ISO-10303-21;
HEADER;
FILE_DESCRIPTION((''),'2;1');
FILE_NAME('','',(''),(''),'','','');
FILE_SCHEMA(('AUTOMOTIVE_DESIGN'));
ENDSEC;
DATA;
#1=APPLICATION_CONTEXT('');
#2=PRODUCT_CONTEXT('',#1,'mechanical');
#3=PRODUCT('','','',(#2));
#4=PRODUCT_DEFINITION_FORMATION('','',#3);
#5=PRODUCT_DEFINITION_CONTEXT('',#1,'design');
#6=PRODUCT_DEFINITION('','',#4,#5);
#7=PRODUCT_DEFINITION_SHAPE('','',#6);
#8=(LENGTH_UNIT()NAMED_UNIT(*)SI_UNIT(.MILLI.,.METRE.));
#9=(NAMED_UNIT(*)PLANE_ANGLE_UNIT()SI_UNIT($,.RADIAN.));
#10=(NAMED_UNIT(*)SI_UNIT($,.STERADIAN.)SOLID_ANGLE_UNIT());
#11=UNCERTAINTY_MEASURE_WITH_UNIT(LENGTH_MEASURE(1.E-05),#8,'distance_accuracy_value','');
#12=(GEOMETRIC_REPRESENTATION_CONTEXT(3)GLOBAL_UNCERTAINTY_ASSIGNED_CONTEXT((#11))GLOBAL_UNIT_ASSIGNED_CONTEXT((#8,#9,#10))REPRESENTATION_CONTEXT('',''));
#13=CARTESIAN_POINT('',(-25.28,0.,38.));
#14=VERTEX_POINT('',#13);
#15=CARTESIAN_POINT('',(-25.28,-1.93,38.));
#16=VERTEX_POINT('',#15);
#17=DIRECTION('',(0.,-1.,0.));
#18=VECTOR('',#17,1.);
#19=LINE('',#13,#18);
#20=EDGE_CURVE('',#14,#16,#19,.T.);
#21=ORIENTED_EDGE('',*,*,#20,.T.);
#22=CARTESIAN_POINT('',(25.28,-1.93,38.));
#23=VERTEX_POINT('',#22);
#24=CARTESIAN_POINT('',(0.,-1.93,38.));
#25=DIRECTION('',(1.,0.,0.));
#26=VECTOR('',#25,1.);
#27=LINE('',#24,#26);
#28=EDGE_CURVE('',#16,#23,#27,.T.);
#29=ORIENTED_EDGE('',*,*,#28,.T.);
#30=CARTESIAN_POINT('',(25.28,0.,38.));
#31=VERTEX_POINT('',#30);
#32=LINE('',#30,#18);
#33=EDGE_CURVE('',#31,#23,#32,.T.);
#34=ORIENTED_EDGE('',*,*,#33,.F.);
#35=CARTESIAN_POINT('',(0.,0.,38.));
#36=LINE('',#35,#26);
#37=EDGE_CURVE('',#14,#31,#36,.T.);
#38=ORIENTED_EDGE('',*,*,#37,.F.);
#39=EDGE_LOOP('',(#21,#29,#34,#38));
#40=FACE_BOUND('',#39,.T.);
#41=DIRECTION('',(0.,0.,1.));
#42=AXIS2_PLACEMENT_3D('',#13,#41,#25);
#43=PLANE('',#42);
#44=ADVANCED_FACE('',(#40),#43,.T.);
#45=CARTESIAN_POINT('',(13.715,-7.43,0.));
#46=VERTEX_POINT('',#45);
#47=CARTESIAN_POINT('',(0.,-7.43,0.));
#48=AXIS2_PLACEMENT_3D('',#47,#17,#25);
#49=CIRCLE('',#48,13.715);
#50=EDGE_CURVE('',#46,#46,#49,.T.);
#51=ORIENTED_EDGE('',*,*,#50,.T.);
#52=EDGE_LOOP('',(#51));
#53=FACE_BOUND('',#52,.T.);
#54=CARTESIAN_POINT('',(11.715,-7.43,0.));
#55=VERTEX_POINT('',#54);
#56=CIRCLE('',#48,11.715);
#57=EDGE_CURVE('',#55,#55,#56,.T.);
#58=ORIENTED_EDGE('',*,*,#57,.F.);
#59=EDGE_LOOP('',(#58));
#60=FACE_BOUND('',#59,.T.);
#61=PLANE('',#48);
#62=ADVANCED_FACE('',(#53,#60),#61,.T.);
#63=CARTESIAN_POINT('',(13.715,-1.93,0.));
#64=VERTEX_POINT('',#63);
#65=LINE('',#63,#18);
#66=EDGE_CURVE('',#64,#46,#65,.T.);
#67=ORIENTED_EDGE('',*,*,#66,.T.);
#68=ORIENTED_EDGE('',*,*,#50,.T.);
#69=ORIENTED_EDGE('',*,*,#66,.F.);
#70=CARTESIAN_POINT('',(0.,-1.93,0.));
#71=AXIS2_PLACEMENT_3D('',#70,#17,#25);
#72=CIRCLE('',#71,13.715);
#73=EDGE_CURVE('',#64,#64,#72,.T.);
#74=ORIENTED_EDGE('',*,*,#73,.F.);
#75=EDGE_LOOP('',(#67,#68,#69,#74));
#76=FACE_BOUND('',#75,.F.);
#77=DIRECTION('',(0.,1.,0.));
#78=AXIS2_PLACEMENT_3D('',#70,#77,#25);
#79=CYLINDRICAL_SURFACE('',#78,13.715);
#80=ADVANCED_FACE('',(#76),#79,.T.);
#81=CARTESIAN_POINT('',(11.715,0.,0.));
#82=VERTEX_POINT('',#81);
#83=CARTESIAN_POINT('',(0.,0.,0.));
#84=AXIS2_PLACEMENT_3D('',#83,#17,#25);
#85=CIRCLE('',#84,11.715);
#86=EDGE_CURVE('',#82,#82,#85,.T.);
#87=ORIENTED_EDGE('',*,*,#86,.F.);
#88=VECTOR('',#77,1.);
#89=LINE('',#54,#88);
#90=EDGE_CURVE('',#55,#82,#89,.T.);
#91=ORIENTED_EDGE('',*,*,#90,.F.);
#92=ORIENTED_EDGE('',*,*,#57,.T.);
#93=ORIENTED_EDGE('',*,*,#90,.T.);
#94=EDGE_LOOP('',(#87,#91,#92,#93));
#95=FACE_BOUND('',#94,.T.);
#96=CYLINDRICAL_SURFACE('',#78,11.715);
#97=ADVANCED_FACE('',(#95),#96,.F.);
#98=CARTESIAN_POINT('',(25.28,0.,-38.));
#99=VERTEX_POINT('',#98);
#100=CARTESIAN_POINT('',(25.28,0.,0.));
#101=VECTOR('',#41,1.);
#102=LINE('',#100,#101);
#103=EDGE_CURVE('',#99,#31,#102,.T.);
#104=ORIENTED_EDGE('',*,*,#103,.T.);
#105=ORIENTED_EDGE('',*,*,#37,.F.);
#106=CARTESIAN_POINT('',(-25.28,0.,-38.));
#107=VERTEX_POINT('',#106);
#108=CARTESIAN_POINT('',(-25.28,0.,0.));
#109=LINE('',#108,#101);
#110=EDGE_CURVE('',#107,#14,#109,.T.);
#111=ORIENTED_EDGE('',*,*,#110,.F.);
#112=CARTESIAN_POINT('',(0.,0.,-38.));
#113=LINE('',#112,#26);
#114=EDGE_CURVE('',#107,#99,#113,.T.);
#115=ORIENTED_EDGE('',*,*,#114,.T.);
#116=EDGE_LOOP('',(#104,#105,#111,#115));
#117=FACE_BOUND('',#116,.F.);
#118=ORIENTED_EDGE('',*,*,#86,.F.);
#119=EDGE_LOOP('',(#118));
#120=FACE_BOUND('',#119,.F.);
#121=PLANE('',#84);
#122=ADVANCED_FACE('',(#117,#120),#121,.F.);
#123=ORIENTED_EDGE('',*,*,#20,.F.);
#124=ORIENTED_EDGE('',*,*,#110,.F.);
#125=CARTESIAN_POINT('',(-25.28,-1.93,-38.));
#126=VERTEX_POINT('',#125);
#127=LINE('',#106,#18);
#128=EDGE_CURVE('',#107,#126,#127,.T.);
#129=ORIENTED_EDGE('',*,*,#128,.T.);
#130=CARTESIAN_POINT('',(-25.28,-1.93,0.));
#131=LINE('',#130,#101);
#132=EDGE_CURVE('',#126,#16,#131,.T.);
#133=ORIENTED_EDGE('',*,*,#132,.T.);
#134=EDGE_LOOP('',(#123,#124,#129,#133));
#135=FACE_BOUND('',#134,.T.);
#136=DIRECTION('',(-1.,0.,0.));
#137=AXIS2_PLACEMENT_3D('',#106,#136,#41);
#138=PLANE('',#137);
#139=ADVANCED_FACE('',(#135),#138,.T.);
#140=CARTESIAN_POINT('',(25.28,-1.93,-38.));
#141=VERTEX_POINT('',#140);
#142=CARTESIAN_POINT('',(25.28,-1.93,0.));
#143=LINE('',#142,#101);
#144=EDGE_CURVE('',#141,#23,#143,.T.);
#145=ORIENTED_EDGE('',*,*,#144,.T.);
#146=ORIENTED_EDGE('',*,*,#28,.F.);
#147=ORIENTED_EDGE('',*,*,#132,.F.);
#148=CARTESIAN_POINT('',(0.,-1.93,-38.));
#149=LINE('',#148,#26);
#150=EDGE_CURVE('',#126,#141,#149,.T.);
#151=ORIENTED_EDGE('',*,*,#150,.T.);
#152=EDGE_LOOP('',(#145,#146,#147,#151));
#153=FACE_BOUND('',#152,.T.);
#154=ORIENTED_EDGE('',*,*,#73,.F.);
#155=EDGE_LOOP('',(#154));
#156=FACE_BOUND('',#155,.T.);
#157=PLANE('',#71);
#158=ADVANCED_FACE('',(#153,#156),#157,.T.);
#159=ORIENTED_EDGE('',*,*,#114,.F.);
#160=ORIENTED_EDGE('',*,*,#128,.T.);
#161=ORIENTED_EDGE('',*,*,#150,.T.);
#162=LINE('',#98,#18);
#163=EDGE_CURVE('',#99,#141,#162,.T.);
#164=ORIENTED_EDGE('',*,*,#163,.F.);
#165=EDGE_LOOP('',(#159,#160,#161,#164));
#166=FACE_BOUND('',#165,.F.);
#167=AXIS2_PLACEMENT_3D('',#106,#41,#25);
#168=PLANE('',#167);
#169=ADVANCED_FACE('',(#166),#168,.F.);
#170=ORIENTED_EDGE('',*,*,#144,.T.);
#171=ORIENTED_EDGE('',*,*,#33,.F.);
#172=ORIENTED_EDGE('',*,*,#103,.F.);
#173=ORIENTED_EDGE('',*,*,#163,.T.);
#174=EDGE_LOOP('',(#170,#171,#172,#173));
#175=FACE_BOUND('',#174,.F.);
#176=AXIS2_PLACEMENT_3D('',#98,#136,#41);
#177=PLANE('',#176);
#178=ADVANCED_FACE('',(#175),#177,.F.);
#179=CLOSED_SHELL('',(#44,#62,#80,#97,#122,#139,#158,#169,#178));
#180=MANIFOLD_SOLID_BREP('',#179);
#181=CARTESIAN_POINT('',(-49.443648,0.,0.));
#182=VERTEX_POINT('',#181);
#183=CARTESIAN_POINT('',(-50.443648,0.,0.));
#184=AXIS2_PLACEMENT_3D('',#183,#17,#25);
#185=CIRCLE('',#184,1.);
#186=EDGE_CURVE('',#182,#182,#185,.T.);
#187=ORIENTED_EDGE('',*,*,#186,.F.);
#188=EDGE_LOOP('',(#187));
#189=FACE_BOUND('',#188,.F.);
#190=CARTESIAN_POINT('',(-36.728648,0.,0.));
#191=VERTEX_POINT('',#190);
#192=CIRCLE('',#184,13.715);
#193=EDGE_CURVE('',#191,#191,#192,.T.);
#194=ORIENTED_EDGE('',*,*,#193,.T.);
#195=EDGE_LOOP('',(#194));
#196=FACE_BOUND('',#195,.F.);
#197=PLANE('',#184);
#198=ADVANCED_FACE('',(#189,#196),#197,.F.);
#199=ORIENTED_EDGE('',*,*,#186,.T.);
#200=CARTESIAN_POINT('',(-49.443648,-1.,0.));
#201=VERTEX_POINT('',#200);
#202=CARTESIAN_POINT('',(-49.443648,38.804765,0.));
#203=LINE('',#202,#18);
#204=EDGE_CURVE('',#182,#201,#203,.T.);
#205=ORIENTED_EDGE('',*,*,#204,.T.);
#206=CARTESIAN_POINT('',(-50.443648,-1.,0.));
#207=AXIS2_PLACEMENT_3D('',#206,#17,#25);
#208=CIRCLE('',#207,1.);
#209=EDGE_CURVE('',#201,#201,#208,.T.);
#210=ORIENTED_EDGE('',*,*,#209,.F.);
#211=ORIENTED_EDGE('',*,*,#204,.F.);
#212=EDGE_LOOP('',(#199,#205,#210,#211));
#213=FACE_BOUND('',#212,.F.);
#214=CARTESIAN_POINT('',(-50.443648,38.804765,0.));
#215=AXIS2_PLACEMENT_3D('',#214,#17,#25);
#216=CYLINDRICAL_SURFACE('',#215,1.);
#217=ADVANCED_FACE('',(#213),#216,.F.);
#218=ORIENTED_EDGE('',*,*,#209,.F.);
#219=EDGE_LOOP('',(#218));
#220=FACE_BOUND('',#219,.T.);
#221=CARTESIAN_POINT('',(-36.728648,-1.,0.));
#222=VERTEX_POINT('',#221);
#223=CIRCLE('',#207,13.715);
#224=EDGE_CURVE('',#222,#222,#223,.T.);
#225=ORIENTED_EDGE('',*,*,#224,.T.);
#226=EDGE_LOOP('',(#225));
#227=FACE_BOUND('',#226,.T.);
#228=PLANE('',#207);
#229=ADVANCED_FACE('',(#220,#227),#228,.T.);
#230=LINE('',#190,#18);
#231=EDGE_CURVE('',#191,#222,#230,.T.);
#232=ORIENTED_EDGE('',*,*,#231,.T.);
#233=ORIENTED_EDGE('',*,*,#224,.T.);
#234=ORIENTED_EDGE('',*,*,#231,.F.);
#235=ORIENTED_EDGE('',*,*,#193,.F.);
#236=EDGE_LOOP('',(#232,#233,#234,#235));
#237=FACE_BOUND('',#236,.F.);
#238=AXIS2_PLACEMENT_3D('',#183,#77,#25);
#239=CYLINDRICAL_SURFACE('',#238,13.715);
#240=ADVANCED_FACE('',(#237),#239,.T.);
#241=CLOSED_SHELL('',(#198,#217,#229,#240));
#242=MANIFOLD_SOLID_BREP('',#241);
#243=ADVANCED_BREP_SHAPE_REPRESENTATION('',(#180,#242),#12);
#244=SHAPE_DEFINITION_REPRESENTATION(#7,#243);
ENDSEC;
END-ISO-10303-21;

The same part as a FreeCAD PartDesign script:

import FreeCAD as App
import Part
import Sketcher
Q = App.Units.Quantity


def add_polygon(sketch, points):
    """Adds a closed chain of lines whose ends are joined by coincident constraints."""
    first, n = sketch.GeometryCount, len(points)
    for a, b in zip(points, points[1:] + points[:1]):
        sketch.addGeometry(Part.LineSegment(App.Vector(*a, 0), App.Vector(*b, 0)), False)
    for i in range(n):
        sketch.addConstraint(Sketcher.Constraint("Coincident", first + i, 2, first + (i + 1) % n, 1))

doc = App.newDocument("Part")
body = doc.addObject("PartDesign::Body", "Body")

# Sketch on XZ plane
sketch1 = doc.addObject("Sketcher::SketchObject", "Sketch")
body.addObject(sketch1)
sketch1.AttachmentSupport = (doc.XZ_Plane, [""])
sketch1.MapMode = "FlatFace"
add_polygon(sketch1, [(-25, 38), (-25, -38), (25, -38), (25, 38)])  # lines 0-3
sketch1.addConstraint(Sketcher.Constraint("Vertical", 0))
sketch1.addConstraint(Sketcher.Constraint("Horizontal", 1))
sketch1.addConstraint(Sketcher.Constraint("Vertical", 2))
sketch1.addConstraint(Sketcher.Constraint("Horizontal", 3))
sketch1.addConstraint(Sketcher.Constraint("Symmetric", 0, 2, 2, 2, -1, 1))
sketch1.addConstraint(Sketcher.Constraint("DistanceY", 0, 2, 0, 1, Q("76 mm")))
sketch1.addConstraint(Sketcher.Constraint("DistanceX", 1, 1, 1, 2, Q("50.56 mm")))
pad1 = doc.addObject("PartDesign::Pad", "Pad")
body.addObject(pad1)
pad1.Profile = sketch1
pad1.Length = 1.93

# Sketch on XZ plane
sketch2 = doc.addObject("Sketcher::SketchObject", "Sketch001")
body.addObject(sketch2)
sketch2.AttachmentSupport = (doc.XZ_Plane, [""])
sketch2.MapMode = "FlatFace"
sketch2.AttachmentOffset = App.Placement(App.Vector(0, 0, 1.93), App.Rotation())
sketch2.addGeometry(Part.Circle(App.Vector(0, 0, 0), App.Vector(0, 0, 1), 12), False)
sketch2.addConstraint(Sketcher.Constraint("Coincident", 0, 3, -1, 1))
sketch2.addConstraint(Sketcher.Constraint("Diameter", 0, Q("23.43 mm")))
pocket1 = doc.addObject("PartDesign::Pocket", "Pocket")
body.addObject(pocket1)
pocket1.Profile = sketch2
pocket1.Length = 1.93

# Sketch on XZ plane
sketch3 = doc.addObject("Sketcher::SketchObject", "Sketch002")
body.addObject(sketch3)
sketch3.AttachmentSupport = (doc.XZ_Plane, [""])
sketch3.MapMode = "FlatFace"
sketch3.AttachmentOffset = App.Placement(App.Vector(0, 0, 1.93), App.Rotation())
sketch3.addGeometry(Part.Circle(App.Vector(0, 0, 0), App.Vector(0, 0, 1), 14), False)
sketch3.addGeometry(Part.Circle(App.Vector(0, 0, 0), App.Vector(0, 0, 1), 12), False)
sketch3.addConstraint(Sketcher.Constraint("Coincident", 0, 3, -1, 1))
sketch3.addConstraint(Sketcher.Constraint("Coincident", 1, 3, -1, 1))
sketch3.addConstraint(Sketcher.Constraint("Diameter", 0, Q("27.43 mm")))
sketch3.addConstraint(Sketcher.Constraint("Diameter", 1, Q("23.43 mm")))
pad2 = doc.addObject("PartDesign::Pad", "Pad001")
body.addObject(pad2)
pad2.Profile = sketch3
pad2.Length = 5.5
body2 = doc.addObject("PartDesign::Body", "Body001")

# Sketch on XZ plane
sketch4 = doc.addObject("Sketcher::SketchObject", "Sketch003")
body2.addObject(sketch4)
sketch4.AttachmentSupport = (doc.getObject("XZ_Plane001"), [""])
sketch4.MapMode = "FlatFace"
sketch4.addGeometry(Part.Circle(App.Vector(-50, 0, 0), App.Vector(0, 0, 1), 14), False)
sketch4.addConstraint(Sketcher.Constraint("PointOnObject", 0, 3, -1))
sketch4.addConstraint(Sketcher.Constraint("Diameter", 0, Q("27.43 mm")))
sketch4.addConstraint(Sketcher.Constraint("DistanceX", 0, 3, -1, 1, Q("50.443648 mm")))
pad3 = doc.addObject("PartDesign::Pad", "Pad002")
body2.addObject(pad3)
pad3.Profile = sketch4
pad3.Length = 1

# Sketch on XZ plane
sketch5 = doc.addObject("Sketcher::SketchObject", "Sketch004")
body2.addObject(sketch5)
sketch5.AttachmentSupport = (doc.getObject("XZ_Plane001"), [""])
sketch5.MapMode = "FlatFace"
sketch5.addGeometry(Part.Circle(App.Vector(-50.4, 0, 0), App.Vector(0, 0, 1), 1), False)
sketch5.addConstraint(Sketcher.Constraint("PointOnObject", 0, 3, -1))
sketch5.addConstraint(Sketcher.Constraint("Diameter", 0, Q("2 mm")))
sketch5.addConstraint(Sketcher.Constraint("DistanceX", 0, 3, -1, 1, Q("50.443648 mm")))
doc.recompute()
hole = doc.addObject("PartDesign::Hole", "Hole")
body2.addObject(hole)
hole.Profile = sketch5
hole.ThreadType = "None"
hole.Diameter = 2
hole.DepthType = "ThroughAll"
hole.Reversed = True

doc.recompute()
